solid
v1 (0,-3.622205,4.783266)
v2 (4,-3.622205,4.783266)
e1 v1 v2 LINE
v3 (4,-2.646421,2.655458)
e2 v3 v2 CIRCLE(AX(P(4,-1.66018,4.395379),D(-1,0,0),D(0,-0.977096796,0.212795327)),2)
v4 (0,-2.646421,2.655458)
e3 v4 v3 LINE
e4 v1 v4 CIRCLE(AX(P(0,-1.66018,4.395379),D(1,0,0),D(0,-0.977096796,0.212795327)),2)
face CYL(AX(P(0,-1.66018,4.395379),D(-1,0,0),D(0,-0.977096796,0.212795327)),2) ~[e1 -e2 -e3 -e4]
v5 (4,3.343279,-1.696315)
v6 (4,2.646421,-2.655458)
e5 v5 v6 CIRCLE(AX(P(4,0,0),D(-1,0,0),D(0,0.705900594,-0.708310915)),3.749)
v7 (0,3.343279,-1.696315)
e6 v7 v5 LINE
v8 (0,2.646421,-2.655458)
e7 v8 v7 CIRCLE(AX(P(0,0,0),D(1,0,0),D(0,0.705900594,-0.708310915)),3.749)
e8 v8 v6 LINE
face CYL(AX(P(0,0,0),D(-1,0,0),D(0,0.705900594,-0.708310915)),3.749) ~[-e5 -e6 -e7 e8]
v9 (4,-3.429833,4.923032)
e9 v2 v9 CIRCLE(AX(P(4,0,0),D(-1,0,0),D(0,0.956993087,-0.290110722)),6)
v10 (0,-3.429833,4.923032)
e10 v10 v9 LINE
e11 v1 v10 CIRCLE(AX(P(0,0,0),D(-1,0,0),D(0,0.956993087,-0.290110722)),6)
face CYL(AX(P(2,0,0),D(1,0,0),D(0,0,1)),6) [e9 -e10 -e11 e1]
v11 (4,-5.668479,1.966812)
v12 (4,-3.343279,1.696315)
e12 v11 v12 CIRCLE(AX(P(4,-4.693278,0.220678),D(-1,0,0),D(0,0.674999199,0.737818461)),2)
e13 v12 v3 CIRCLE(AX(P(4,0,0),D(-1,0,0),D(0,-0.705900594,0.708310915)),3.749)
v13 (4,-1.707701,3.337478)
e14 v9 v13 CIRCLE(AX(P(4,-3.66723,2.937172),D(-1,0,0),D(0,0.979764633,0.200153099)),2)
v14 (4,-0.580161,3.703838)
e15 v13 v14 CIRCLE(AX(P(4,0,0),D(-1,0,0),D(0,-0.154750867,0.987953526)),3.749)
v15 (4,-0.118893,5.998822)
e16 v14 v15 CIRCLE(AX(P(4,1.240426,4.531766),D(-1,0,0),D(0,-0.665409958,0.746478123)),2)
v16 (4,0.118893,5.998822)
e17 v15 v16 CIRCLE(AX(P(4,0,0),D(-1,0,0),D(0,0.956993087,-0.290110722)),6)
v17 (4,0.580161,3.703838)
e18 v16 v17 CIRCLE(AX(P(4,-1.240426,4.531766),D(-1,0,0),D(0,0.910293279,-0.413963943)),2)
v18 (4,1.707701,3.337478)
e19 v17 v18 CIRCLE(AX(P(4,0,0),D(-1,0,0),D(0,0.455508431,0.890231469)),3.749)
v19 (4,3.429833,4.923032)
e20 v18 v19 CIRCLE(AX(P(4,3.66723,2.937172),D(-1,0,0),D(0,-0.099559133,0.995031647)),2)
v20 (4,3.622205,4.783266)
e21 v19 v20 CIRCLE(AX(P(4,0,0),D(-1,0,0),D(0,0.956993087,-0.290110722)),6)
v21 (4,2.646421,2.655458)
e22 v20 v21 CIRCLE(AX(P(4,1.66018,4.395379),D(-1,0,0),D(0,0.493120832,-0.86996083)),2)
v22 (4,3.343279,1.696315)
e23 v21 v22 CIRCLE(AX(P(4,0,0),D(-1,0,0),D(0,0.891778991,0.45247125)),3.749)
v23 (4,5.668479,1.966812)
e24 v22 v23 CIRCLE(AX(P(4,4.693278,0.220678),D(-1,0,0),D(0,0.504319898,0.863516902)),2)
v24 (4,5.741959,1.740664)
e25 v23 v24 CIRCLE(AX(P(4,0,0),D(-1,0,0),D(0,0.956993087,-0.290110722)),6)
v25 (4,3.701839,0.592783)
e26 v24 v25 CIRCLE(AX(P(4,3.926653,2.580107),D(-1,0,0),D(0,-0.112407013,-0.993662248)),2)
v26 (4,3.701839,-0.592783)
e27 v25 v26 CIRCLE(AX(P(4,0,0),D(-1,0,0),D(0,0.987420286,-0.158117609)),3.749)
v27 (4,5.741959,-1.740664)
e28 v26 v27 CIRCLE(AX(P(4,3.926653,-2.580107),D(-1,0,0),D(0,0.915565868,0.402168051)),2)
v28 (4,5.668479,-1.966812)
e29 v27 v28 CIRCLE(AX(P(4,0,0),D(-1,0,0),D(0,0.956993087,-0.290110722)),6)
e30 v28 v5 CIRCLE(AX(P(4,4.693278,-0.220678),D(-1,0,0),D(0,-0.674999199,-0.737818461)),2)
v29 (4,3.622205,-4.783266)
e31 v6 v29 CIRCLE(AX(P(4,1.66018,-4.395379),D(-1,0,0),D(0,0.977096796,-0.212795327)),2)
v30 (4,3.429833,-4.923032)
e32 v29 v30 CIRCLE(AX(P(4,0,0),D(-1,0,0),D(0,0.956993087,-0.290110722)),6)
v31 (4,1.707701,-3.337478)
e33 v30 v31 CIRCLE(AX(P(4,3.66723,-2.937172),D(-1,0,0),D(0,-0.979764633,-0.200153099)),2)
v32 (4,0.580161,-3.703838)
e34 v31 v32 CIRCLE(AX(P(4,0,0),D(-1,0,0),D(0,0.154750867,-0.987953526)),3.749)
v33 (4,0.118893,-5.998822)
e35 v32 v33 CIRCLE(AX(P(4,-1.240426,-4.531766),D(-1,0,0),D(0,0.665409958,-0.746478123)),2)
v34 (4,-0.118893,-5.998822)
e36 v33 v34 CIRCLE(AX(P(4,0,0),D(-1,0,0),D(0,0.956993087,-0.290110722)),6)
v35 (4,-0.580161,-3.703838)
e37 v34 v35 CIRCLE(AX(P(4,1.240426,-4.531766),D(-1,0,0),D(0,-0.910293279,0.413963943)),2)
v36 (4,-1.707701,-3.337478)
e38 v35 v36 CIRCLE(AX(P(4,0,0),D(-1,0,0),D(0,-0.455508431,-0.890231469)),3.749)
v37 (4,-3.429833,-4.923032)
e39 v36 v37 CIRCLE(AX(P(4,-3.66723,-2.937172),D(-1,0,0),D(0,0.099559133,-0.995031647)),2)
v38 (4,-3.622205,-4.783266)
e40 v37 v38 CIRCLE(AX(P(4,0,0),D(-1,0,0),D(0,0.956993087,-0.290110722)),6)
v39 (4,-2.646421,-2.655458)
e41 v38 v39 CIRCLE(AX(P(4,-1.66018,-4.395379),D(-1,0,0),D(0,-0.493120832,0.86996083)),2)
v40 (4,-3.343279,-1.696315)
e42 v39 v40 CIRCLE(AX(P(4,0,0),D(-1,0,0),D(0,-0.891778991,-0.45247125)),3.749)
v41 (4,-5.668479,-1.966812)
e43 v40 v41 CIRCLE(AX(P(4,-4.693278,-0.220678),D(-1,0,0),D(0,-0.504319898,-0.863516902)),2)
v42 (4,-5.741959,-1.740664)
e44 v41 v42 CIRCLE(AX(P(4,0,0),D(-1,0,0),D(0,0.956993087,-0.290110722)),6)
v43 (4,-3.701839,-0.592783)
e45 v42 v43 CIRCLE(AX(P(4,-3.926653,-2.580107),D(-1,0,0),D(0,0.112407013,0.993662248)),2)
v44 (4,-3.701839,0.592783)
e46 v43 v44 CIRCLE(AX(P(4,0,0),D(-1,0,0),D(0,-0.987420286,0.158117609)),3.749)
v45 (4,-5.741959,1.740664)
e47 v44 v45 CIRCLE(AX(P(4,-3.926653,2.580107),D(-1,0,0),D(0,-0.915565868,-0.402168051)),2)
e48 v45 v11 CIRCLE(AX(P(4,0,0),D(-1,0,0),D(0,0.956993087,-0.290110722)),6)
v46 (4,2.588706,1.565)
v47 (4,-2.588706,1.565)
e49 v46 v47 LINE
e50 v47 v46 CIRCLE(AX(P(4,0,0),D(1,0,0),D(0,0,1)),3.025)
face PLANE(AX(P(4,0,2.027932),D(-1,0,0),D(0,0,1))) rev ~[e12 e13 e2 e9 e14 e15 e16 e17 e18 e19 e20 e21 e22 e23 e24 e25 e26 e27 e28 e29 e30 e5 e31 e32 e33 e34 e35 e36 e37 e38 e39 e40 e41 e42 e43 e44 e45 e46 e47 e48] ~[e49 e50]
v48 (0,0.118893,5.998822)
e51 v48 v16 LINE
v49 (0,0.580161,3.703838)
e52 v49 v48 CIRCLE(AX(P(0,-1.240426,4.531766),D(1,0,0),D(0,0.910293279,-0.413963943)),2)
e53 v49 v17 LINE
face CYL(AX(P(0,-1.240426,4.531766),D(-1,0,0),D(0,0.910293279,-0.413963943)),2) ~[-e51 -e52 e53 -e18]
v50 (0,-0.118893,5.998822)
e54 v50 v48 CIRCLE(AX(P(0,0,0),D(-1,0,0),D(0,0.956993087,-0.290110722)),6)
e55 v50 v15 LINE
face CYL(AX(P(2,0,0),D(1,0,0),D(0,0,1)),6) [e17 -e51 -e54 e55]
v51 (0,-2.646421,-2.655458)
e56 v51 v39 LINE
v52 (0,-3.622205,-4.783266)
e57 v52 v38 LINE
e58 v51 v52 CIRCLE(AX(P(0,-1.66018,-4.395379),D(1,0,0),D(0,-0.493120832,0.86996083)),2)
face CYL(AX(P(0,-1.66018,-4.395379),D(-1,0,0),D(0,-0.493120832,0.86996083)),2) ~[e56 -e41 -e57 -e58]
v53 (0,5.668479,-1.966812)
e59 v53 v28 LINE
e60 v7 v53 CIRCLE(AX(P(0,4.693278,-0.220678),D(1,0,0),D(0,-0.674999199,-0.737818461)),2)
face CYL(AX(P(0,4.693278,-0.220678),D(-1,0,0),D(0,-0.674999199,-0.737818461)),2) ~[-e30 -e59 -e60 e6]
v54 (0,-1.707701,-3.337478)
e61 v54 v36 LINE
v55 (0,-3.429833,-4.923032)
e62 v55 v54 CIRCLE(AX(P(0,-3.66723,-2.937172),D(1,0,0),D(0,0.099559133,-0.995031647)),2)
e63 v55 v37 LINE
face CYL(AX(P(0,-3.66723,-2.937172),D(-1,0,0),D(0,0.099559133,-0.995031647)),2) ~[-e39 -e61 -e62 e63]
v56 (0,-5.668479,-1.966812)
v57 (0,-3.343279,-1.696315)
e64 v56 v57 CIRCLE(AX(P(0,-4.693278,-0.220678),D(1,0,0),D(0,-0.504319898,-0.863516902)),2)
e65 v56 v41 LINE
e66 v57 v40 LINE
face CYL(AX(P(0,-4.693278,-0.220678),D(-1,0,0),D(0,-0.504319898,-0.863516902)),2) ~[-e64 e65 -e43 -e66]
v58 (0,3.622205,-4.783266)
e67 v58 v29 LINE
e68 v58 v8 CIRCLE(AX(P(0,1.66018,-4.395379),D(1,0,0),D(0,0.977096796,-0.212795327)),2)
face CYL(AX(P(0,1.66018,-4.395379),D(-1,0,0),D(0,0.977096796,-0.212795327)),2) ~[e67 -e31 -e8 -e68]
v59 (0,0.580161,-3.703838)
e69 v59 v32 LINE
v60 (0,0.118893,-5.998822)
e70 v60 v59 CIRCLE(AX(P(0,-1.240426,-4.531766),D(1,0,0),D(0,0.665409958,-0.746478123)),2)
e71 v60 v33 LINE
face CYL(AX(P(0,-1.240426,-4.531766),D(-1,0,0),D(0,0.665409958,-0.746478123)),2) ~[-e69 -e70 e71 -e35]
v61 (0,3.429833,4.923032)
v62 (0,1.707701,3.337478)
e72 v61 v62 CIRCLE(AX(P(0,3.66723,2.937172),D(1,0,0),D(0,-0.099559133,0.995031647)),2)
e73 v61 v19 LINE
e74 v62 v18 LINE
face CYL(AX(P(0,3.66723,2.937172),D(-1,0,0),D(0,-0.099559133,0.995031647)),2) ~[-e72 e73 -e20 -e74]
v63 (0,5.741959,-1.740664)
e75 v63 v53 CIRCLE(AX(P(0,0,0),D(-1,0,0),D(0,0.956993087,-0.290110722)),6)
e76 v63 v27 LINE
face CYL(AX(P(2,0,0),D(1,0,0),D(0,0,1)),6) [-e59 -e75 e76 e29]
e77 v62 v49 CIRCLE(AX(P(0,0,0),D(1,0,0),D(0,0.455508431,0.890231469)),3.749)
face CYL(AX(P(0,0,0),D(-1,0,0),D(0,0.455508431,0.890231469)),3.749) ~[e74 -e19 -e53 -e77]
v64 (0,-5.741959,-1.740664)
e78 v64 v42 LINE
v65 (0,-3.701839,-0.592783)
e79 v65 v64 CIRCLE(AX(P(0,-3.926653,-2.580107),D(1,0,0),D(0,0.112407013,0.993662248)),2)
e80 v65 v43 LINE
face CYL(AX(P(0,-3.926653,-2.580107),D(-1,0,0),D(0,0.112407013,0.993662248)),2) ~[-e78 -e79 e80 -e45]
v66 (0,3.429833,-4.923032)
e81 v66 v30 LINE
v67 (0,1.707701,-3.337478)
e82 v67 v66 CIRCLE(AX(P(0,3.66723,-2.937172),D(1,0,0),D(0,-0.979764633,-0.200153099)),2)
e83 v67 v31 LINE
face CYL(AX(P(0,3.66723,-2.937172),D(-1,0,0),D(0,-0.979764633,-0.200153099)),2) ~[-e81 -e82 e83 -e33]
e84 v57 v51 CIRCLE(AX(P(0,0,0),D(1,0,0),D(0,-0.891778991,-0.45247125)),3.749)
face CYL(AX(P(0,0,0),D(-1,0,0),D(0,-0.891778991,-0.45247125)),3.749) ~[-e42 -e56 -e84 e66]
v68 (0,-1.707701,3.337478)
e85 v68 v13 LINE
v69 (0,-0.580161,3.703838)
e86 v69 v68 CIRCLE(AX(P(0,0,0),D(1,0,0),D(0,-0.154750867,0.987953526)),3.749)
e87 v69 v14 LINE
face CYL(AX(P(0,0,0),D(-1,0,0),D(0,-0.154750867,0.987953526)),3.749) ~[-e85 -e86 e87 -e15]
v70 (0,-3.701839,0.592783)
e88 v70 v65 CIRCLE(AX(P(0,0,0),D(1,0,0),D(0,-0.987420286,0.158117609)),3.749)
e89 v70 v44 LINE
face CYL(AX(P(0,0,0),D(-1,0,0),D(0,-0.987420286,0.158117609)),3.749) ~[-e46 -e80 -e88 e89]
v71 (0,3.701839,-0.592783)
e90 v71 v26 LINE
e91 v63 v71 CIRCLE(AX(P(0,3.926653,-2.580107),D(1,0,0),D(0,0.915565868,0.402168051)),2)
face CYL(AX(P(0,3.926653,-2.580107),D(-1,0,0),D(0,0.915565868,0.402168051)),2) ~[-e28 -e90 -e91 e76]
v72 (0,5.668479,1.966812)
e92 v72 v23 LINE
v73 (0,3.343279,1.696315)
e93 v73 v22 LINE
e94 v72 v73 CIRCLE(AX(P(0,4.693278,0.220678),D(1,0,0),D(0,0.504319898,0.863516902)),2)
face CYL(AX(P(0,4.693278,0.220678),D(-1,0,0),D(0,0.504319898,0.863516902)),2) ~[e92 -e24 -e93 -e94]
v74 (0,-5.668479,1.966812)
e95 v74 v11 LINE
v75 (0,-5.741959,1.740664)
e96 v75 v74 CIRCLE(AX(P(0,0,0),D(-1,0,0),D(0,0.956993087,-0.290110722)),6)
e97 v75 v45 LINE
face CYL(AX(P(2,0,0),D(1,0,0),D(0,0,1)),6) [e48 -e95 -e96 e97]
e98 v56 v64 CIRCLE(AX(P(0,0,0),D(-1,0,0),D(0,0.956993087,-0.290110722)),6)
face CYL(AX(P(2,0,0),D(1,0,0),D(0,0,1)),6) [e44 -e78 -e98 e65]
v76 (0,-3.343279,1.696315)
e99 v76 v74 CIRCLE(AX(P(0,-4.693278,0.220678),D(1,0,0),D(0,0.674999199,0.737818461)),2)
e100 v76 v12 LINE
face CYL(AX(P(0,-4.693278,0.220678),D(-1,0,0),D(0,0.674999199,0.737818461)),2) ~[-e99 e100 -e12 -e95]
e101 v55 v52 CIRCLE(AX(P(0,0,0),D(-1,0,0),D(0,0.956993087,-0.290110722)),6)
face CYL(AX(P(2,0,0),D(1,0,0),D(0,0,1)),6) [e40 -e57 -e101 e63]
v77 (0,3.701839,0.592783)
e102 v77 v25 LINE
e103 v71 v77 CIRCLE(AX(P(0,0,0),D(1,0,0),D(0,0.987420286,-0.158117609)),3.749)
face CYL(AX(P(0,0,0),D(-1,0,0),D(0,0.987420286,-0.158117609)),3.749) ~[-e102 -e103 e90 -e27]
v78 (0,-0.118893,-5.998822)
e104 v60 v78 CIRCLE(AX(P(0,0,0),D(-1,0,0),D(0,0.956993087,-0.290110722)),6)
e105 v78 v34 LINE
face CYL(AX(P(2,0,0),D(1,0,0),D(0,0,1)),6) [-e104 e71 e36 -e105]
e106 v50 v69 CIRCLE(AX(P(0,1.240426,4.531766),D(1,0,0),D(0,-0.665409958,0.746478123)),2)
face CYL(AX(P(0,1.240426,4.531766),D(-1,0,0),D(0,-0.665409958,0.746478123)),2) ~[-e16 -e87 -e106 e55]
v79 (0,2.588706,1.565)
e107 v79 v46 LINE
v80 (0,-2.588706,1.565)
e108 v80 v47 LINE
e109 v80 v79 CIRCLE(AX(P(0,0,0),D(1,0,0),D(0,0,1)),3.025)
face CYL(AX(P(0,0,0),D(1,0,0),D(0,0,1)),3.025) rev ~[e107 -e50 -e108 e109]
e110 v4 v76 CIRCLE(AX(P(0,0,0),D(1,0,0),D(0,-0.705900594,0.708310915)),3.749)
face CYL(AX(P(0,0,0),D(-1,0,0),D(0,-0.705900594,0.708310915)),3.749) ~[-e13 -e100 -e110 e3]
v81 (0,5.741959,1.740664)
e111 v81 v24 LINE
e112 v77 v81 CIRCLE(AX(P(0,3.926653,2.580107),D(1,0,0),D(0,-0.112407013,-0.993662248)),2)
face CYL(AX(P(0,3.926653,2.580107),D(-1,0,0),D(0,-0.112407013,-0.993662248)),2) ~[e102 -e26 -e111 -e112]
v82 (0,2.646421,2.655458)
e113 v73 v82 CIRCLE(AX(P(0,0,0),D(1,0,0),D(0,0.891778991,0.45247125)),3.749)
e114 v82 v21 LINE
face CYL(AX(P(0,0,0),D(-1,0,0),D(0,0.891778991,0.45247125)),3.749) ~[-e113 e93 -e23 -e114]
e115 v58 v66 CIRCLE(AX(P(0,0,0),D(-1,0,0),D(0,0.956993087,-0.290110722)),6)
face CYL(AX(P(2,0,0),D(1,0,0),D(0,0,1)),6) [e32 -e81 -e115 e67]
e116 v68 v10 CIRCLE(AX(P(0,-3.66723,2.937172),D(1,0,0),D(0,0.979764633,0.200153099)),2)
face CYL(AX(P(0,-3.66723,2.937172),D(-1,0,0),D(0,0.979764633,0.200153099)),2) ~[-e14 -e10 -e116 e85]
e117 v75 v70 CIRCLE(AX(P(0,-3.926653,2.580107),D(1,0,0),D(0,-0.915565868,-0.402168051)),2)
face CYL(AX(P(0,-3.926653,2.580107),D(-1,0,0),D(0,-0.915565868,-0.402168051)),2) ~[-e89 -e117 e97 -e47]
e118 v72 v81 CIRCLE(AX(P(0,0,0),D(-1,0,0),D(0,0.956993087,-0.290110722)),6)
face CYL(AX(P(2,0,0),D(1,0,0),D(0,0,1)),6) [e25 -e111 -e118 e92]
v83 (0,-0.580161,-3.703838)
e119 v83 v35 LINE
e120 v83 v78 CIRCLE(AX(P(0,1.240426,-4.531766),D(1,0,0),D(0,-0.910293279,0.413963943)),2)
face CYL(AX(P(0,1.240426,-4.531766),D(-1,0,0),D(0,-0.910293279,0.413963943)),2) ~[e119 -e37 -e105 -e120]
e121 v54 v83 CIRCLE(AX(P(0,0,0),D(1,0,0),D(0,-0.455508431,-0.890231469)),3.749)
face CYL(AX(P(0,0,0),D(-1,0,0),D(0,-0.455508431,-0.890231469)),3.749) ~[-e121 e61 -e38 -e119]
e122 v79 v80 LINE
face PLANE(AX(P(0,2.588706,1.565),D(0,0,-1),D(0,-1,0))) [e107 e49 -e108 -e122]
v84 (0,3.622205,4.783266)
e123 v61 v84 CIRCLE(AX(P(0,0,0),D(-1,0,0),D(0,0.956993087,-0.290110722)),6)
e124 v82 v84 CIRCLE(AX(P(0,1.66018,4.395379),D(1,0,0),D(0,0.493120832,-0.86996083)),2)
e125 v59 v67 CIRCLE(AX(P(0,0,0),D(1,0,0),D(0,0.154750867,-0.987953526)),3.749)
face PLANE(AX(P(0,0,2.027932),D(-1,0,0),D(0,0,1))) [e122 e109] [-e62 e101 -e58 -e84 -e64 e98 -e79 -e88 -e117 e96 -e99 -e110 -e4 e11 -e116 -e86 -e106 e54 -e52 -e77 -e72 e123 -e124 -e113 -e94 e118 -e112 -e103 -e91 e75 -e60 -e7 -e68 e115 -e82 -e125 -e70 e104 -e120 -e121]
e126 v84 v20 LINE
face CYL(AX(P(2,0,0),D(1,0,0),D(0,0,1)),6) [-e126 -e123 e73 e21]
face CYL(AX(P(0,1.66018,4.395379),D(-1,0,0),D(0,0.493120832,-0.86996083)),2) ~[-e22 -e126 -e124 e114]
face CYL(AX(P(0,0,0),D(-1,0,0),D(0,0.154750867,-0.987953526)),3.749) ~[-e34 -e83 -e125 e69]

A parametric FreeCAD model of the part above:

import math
import FreeCAD as App
import Part
import Sketcher
from FreeCAD import Vector


def add_polygon(sketch, points):
    """Adds a closed chain of lines whose ends are joined by coincident constraints."""
    first, n = sketch.GeometryCount, len(points)
    for a, b in zip(points, points[1:] + points[:1]):
        sketch.addGeometry(Part.LineSegment(App.Vector(*a, 0), App.Vector(*b, 0)), False)
    for i in range(n):
        sketch.addConstraint(Sketcher.Constraint("Coincident", first + i, 2, first + (i + 1) % n, 1))

doc = App.newDocument("Part")
body = doc.addObject("PartDesign::Body", "Body")

sketch1 = body.newObject("Sketcher::SketchObject", "Sketch")
sketch1.AttachmentSupport = (doc.getObject("XZ_Plane"), [""])
sketch1.MapMode = "FlatFace"
add_polygon(sketch1, [(0, -6), (0, 0), (4, 0), (4, -6)])
sketch1.addConstraint([
    Sketcher.Constraint("Vertical", 0),
    Sketcher.Constraint("Horizontal", 1),
    Sketcher.Constraint("Vertical", 2),
    Sketcher.Constraint("Horizontal", 3),
    Sketcher.Constraint("Coincident", 0, 2, -1, 1),
    Sketcher.Constraint("DistanceX", 1, 1, 1, 2, 4.0),
    Sketcher.Constraint("DistanceY", 0, 1, 0, 2, 6.0),
])
revolution = body.newObject("PartDesign::Revolution", "Revolution")
revolution.Profile = sketch1
revolution.ReferenceAxis = (sketch1, ["H_Axis"])
revolution.Angle = 360

sketch2 = body.newObject("Sketcher::SketchObject", "Sketch001")
sketch2.AttachmentSupport = (doc.getObject("YZ_Plane"), [""])
sketch2.MapMode = "FlatFace"
sketch2.addGeometry([
    Part.ArcOfCircle(Part.Circle(Vector(0, 0, 0), Vector(0, 0, 1), 3.749), math.radians(-9.097652), math.radians(9.097652)),
    Part.ArcOfCircle(Part.Circle(Vector(3.926653, -2.580107, 0), Vector(0, 0, 1), 2), math.radians(23.713784), math.radians(96.454088)),
    Part.ArcOfCircle(Part.Circle(Vector(0, 0, 0), Vector(0, 0, 1), 6.0254), math.radians(-17.140404), math.radians(17.140404)),
    Part.ArcOfCircle(Part.Circle(Vector(3.926653, 2.580107, 0), Vector(0, 0, 1), 2), math.radians(-96.454088), math.radians(-23.713784)),
], False)
sketch2.addConstraint([
    Sketcher.Constraint("Coincident", 0, 1, 1, 2),
    Sketcher.Constraint("Coincident", 1, 1, 2, 1),
    Sketcher.Constraint("Coincident", 2, 2, 3, 2),
    Sketcher.Constraint("Coincident", 3, 1, 0, 2),
    Sketcher.Constraint("Coincident", 0, 3, -1, 1),
    Sketcher.Constraint("Coincident", 2, 3, -1, 1),
    Sketcher.Constraint("Equal", 1, 3),
    Sketcher.Constraint("Symmetric", 1, 3, 3, 3, -1),
    Sketcher.Constraint("Radius", 1, 2.0),
    Sketcher.Constraint("Radius", 0, 3.749),
    Sketcher.Constraint("Radius", 2, 6.0254),
    Sketcher.Constraint("DistanceX", -1, 1, 0, 1, 3.701839),
    Sketcher.Constraint("DistanceY", 1, 1, -1, 1, 1.775771),
])
pocket1 = body.newObject("PartDesign::Pocket", "Pocket")
pocket1.Profile = sketch2
pocket1.Type = "ThroughAll"
pocket1.Reversed = True
doc.recompute()

polarpattern = body.newObject("PartDesign::PolarPattern", "PolarPattern")
polarpattern.Originals = [pocket1]
polarpattern.Axis = (doc.getObject("X_Axis"), [""])
polarpattern.Angle = 360
polarpattern.Occurrences = 10
body.Tip = polarpattern

sketch3 = body.newObject("Sketcher::SketchObject", "Sketch002")
sketch3.AttachmentSupport = (doc.getObject("YZ_Plane"), [""])
sketch3.MapMode = "FlatFace"
sketch3.addGeometry(Part.Circle(Vector(0, 0, 0), Vector(0, 0, 1), 3.025), False)
sketch3.addConstraint([
    Sketcher.Constraint("Coincident", 0, 3, -1, 1),
    Sketcher.Constraint("Diameter", 0, 6.05),
])
pocket2 = body.newObject("PartDesign::Pocket", "Pocket001")
pocket2.Profile = sketch3
pocket2.Length = 100.000102
pocket2.Midplane = True

sketch4 = body.newObject("Sketcher::SketchObject", "Sketch003")
sketch4.AttachmentSupport = (doc.getObject("YZ_Plane"), [""])
sketch4.MapMode = "FlatFace"
sketch4.addGeometry([
    Part.ArcOfCircle(Part.Circle(Vector(0, 0, 0), Vector(0, 0, 1), 3.025), math.radians(31.155022), math.radians(148.844978)),
    Part.LineSegment(Vector(2.588706, 1.565, 0), Vector(-2.588706, 1.565, 0)),
], False)
sketch4.addConstraint([
    Sketcher.Constraint("Coincident", 0, 1, 1, 1),
    Sketcher.Constraint("Coincident", 1, 2, 0, 2),
    Sketcher.Constraint("Horizontal", 1),
    Sketcher.Constraint("Coincident", 0, 3, -1, 1),
    Sketcher.Constraint("Radius", 0, 3.025),
    Sketcher.Constraint("DistanceY", -1, 1, 0, 1, 1.565),
])
pad1 = body.newObject("PartDesign::Pad", "Pad")
pad1.Profile = sketch4
pad1.Length = 4

doc.recompute()
